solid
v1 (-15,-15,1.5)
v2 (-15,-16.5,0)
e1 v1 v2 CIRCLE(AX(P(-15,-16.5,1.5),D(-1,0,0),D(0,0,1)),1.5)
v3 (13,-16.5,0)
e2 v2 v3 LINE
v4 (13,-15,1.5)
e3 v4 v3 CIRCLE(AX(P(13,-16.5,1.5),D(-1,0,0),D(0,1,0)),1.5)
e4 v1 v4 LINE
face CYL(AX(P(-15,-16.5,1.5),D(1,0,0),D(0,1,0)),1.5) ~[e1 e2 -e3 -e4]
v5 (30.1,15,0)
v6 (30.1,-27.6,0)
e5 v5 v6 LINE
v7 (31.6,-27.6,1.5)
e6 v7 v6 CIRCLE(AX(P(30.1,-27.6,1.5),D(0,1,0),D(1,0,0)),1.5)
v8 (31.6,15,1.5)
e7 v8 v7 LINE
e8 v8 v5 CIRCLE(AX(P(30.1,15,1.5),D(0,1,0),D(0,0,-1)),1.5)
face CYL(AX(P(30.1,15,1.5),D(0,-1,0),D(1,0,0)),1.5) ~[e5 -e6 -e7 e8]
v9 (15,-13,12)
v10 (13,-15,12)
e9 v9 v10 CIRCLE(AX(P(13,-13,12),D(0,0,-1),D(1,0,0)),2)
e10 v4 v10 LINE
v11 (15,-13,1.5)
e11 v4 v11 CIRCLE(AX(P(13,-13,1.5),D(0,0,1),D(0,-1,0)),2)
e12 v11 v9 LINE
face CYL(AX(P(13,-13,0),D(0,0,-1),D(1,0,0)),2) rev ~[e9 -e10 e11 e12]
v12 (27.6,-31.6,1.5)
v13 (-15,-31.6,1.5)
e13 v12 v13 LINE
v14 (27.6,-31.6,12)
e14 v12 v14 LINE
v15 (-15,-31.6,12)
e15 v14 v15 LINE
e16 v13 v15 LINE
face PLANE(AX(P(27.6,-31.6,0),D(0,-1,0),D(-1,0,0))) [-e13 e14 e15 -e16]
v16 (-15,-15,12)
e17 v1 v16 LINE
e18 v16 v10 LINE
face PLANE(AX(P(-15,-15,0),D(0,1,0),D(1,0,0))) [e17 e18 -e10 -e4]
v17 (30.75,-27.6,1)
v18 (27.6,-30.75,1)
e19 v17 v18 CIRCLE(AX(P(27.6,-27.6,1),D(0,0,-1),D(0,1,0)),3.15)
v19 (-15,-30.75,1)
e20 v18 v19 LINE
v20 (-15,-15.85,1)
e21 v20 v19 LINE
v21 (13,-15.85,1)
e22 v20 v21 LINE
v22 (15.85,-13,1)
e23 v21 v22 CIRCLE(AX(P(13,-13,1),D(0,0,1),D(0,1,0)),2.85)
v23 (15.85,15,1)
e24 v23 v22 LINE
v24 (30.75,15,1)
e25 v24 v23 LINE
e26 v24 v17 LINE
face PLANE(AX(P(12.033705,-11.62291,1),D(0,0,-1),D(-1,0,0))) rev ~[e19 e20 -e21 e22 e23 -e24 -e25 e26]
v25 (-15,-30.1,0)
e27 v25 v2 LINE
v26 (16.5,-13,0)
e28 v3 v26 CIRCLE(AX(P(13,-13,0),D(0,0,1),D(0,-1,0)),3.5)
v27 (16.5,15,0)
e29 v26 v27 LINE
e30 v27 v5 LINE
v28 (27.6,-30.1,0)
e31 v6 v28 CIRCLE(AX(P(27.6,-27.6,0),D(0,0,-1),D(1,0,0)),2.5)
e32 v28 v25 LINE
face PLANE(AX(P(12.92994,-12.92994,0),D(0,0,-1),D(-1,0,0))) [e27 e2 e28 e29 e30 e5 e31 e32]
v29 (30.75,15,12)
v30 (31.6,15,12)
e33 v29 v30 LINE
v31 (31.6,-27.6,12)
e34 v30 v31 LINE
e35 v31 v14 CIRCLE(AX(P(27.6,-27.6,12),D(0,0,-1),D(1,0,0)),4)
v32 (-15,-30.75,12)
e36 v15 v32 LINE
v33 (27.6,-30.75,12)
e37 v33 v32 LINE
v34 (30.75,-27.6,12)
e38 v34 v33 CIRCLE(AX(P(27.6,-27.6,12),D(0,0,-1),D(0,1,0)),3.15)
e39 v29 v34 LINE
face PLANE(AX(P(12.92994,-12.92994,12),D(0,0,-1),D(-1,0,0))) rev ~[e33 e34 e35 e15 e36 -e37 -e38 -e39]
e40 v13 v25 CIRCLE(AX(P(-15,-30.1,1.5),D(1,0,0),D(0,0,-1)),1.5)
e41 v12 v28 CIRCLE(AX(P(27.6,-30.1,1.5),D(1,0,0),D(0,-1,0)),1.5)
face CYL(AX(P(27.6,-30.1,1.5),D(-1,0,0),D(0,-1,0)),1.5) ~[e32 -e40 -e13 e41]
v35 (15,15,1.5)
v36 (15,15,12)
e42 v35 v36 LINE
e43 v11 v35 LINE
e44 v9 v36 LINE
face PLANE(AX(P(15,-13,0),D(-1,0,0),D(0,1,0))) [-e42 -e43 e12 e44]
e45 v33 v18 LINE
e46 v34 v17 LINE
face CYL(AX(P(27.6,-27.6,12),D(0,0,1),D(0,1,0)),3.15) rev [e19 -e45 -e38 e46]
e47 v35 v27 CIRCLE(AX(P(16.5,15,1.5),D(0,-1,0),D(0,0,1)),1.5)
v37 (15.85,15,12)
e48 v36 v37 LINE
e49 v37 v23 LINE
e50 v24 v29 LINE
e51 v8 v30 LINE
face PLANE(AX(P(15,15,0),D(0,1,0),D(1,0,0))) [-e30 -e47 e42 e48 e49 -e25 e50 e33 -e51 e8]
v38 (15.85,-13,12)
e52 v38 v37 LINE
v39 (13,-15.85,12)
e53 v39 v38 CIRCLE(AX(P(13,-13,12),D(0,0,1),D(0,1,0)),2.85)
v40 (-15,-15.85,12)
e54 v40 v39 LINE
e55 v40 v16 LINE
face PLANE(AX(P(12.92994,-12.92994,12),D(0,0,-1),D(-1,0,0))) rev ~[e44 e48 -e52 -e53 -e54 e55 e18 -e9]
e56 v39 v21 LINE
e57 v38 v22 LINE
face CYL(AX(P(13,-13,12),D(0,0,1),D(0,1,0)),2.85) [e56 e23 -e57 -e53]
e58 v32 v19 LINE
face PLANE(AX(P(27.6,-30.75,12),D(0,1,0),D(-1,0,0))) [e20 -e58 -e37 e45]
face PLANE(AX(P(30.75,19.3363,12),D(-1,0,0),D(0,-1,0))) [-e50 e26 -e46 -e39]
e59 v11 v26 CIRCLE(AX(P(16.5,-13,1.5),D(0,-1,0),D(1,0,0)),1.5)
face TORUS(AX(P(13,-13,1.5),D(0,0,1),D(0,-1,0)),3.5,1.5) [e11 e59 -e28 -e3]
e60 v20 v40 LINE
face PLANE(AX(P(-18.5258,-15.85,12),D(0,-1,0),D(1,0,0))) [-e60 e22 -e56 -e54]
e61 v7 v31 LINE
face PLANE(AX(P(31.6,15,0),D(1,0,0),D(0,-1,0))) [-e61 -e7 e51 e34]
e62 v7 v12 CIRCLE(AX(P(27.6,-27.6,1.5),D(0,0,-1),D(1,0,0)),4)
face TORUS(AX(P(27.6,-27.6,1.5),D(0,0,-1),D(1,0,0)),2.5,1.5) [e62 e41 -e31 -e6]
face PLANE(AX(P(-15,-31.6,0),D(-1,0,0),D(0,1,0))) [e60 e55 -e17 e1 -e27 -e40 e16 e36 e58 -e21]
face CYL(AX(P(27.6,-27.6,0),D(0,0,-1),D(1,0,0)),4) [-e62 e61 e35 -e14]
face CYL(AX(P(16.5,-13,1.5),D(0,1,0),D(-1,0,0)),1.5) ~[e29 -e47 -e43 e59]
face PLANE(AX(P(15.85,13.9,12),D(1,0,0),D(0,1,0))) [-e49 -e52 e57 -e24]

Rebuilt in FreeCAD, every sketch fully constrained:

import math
import FreeCAD as App
import Part
import Sketcher

V = App.Vector
Q = App.Units.Quantity


def edges_at(feature, points):
    """Names of the edges that pass closest to the given points."""
    edges = feature.Shape.Edges
    near = lambda p: min(range(len(edges)), key=lambda i: edges[i].distToShape(Part.Vertex(*p))[0])
    return sorted({f"Edge{near(p) + 1}" for p in points})

doc = App.newDocument("Part")
body = doc.addObject("PartDesign::Body", "Body")

sketch1 = body.newObject("Sketcher::SketchObject", "Sketch")
sketch1.AttachmentSupport = (doc.getObject("XY_Plane"), [""])
sketch1.MapMode = "FlatFace"
sketch1.addGeometry([
    Part.LineSegment(V(-15, -31.6, 0), V(27.6, -31.6, 0)),
    Part.ArcOfCircle(Part.Circle(V(27.6, -27.6, 0), V(0, 0, 1), 4), math.radians(-90), math.radians(0)),
    Part.LineSegment(V(31.6, -27.6, 0), V(31.6, 15, 0)),
    Part.LineSegment(V(31.6, 15, 0), V(15, 15, 0)),
    Part.LineSegment(V(15, 15, 0), V(15, -13, 0)),
    Part.ArcOfCircle(Part.Circle(V(13, -13, 0), V(0, 0, 1), 2), math.radians(-90), math.radians(0)),
    Part.LineSegment(V(13, -15, 0), V(-15, -15, 0)),
    Part.LineSegment(V(-15, -15, 0), V(-15, -31.6, 0)),
], False)
sketch1.addConstraint([
    Sketcher.Constraint("Tangent", 0, 2, 1, 1),
    Sketcher.Constraint("Tangent", 1, 2, 2, 1),
    Sketcher.Constraint("Coincident", 2, 2, 3, 1),
    Sketcher.Constraint("Coincident", 3, 2, 4, 1),
    Sketcher.Constraint("Tangent", 4, 2, 5, 2),
    Sketcher.Constraint("Tangent", 5, 1, 6, 1),
    Sketcher.Constraint("Coincident", 6, 2, 7, 1),
    Sketcher.Constraint("Coincident", 7, 2, 0, 1),
    Sketcher.Constraint("Horizontal", 0),
    Sketcher.Constraint("Vertical", 2),
    Sketcher.Constraint("Horizontal", 3),
    Sketcher.Constraint("Vertical", 4),
    Sketcher.Constraint("Horizontal", 6),
    Sketcher.Constraint("Vertical", 7),
    Sketcher.Constraint("Symmetric", 3, 2, 6, 2, -1, 1),
    Sketcher.Constraint("Equal", 0, 2),
    Sketcher.Constraint("Equal", 6, 4),
    Sketcher.Constraint("Radius", 1, Q("4 mm")),
    Sketcher.Constraint("Radius", 5, Q("2 mm")),
    Sketcher.Constraint("DistanceX", 6, 2, 6, 1, Q("28 mm")),
    Sketcher.Constraint("DistanceX", 0, 1, 0, 2, Q("42.6 mm")),
])
pad1 = body.newObject("PartDesign::Pad", "Pad")
pad1.Profile = sketch1
pad1.Length = 12
doc.recompute()

fillet = body.newObject("PartDesign::Fillet", "Fillet")
fillet.Base = (pad1, edges_at(pad1, [
    (6.3, -31.6, 0),
    (30.428, -30.428, 0),
    (31.6, -6.3, 0),
    (-1, -15, 0),
    (14.414, -14.414, 0),
    (15, 1, 0),
]))
fillet.Radius = 1.5

sketch2 = body.newObject("Sketcher::SketchObject", "Sketch001")
sketch2.AttachmentSupport = (doc.getObject("XY_Plane"), [""])
sketch2.MapMode = "FlatFace"
sketch2.AttachmentOffset = App.Placement(V(0, 0, 12), App.Rotation())
sketch2.addGeometry([
    Part.LineSegment(V(30.8, 19.3, 0), V(15.8, 19.3, 0)),
    Part.LineSegment(V(15.8, 19.3, 0), V(15.8, -13, 0)),
    Part.ArcOfCircle(Part.Circle(V(13, -13, 0), V(0, 0, 1), 2.8), math.radians(-90), math.radians(0)),
    Part.LineSegment(V(13, -15.8, 0), V(-18.5, -15.8, 0)),
    Part.LineSegment(V(-18.5, -15.8, 0), V(-18.5, -30.8, 0)),
    Part.LineSegment(V(-18.5, -30.8, 0), V(27.6, -30.8, 0)),
    Part.ArcOfCircle(Part.Circle(V(27.6, -27.6, 0), V(0, 0, 1), 3.1), math.radians(-90), math.radians(0)),
    Part.LineSegment(V(30.8, -27.6, 0), V(30.8, 19.3, 0)),
], False)
sketch2.addConstraint([
    Sketcher.Constraint("Coincident", 0, 2, 1, 1),
    Sketcher.Constraint("Tangent", 1, 2, 2, 2),
    Sketcher.Constraint("Tangent", 2, 1, 3, 1),
    Sketcher.Constraint("Coincident", 3, 2, 4, 1),
    Sketcher.Constraint("Coincident", 4, 2, 5, 1),
    Sketcher.Constraint("Tangent", 5, 2, 6, 1),
    Sketcher.Constraint("Tangent", 6, 2, 7, 1),
    Sketcher.Constraint("Coincident", 7, 2, 0, 1),
    Sketcher.Constraint("Horizontal", 0),
    Sketcher.Constraint("Vertical", 1),
    Sketcher.Constraint("Horizontal", 3),
    Sketcher.Constraint("Vertical", 4),
    Sketcher.Constraint("Horizontal", 5),
    Sketcher.Constraint("Vertical", 7),
    Sketcher.Constraint("Equal", 0, 4),
    Sketcher.Constraint("Radius", 2, Q("2.85 mm")),
    Sketcher.Constraint("Radius", 6, Q("3.15 mm")),
    Sketcher.Constraint("DistanceX", 0, 2, 0, 1, Q("14.9 mm")),
    Sketcher.Constraint("DistanceX", -1, 1, 2, 3, Q("13 mm")),
    Sketcher.Constraint("DistanceY", 2, 3, -1, 1, Q("13 mm")),
    Sketcher.Constraint("DistanceX", 3, 2, 3, 1, Q("31.5258 mm")),
    Sketcher.Constraint("DistanceY", 1, 2, 1, 1, Q("32.3363 mm")),
])
pocket1 = body.newObject("PartDesign::Pocket", "Pocket")
pocket1.Profile = sketch2
pocket1.Length = 11

doc.recompute()
